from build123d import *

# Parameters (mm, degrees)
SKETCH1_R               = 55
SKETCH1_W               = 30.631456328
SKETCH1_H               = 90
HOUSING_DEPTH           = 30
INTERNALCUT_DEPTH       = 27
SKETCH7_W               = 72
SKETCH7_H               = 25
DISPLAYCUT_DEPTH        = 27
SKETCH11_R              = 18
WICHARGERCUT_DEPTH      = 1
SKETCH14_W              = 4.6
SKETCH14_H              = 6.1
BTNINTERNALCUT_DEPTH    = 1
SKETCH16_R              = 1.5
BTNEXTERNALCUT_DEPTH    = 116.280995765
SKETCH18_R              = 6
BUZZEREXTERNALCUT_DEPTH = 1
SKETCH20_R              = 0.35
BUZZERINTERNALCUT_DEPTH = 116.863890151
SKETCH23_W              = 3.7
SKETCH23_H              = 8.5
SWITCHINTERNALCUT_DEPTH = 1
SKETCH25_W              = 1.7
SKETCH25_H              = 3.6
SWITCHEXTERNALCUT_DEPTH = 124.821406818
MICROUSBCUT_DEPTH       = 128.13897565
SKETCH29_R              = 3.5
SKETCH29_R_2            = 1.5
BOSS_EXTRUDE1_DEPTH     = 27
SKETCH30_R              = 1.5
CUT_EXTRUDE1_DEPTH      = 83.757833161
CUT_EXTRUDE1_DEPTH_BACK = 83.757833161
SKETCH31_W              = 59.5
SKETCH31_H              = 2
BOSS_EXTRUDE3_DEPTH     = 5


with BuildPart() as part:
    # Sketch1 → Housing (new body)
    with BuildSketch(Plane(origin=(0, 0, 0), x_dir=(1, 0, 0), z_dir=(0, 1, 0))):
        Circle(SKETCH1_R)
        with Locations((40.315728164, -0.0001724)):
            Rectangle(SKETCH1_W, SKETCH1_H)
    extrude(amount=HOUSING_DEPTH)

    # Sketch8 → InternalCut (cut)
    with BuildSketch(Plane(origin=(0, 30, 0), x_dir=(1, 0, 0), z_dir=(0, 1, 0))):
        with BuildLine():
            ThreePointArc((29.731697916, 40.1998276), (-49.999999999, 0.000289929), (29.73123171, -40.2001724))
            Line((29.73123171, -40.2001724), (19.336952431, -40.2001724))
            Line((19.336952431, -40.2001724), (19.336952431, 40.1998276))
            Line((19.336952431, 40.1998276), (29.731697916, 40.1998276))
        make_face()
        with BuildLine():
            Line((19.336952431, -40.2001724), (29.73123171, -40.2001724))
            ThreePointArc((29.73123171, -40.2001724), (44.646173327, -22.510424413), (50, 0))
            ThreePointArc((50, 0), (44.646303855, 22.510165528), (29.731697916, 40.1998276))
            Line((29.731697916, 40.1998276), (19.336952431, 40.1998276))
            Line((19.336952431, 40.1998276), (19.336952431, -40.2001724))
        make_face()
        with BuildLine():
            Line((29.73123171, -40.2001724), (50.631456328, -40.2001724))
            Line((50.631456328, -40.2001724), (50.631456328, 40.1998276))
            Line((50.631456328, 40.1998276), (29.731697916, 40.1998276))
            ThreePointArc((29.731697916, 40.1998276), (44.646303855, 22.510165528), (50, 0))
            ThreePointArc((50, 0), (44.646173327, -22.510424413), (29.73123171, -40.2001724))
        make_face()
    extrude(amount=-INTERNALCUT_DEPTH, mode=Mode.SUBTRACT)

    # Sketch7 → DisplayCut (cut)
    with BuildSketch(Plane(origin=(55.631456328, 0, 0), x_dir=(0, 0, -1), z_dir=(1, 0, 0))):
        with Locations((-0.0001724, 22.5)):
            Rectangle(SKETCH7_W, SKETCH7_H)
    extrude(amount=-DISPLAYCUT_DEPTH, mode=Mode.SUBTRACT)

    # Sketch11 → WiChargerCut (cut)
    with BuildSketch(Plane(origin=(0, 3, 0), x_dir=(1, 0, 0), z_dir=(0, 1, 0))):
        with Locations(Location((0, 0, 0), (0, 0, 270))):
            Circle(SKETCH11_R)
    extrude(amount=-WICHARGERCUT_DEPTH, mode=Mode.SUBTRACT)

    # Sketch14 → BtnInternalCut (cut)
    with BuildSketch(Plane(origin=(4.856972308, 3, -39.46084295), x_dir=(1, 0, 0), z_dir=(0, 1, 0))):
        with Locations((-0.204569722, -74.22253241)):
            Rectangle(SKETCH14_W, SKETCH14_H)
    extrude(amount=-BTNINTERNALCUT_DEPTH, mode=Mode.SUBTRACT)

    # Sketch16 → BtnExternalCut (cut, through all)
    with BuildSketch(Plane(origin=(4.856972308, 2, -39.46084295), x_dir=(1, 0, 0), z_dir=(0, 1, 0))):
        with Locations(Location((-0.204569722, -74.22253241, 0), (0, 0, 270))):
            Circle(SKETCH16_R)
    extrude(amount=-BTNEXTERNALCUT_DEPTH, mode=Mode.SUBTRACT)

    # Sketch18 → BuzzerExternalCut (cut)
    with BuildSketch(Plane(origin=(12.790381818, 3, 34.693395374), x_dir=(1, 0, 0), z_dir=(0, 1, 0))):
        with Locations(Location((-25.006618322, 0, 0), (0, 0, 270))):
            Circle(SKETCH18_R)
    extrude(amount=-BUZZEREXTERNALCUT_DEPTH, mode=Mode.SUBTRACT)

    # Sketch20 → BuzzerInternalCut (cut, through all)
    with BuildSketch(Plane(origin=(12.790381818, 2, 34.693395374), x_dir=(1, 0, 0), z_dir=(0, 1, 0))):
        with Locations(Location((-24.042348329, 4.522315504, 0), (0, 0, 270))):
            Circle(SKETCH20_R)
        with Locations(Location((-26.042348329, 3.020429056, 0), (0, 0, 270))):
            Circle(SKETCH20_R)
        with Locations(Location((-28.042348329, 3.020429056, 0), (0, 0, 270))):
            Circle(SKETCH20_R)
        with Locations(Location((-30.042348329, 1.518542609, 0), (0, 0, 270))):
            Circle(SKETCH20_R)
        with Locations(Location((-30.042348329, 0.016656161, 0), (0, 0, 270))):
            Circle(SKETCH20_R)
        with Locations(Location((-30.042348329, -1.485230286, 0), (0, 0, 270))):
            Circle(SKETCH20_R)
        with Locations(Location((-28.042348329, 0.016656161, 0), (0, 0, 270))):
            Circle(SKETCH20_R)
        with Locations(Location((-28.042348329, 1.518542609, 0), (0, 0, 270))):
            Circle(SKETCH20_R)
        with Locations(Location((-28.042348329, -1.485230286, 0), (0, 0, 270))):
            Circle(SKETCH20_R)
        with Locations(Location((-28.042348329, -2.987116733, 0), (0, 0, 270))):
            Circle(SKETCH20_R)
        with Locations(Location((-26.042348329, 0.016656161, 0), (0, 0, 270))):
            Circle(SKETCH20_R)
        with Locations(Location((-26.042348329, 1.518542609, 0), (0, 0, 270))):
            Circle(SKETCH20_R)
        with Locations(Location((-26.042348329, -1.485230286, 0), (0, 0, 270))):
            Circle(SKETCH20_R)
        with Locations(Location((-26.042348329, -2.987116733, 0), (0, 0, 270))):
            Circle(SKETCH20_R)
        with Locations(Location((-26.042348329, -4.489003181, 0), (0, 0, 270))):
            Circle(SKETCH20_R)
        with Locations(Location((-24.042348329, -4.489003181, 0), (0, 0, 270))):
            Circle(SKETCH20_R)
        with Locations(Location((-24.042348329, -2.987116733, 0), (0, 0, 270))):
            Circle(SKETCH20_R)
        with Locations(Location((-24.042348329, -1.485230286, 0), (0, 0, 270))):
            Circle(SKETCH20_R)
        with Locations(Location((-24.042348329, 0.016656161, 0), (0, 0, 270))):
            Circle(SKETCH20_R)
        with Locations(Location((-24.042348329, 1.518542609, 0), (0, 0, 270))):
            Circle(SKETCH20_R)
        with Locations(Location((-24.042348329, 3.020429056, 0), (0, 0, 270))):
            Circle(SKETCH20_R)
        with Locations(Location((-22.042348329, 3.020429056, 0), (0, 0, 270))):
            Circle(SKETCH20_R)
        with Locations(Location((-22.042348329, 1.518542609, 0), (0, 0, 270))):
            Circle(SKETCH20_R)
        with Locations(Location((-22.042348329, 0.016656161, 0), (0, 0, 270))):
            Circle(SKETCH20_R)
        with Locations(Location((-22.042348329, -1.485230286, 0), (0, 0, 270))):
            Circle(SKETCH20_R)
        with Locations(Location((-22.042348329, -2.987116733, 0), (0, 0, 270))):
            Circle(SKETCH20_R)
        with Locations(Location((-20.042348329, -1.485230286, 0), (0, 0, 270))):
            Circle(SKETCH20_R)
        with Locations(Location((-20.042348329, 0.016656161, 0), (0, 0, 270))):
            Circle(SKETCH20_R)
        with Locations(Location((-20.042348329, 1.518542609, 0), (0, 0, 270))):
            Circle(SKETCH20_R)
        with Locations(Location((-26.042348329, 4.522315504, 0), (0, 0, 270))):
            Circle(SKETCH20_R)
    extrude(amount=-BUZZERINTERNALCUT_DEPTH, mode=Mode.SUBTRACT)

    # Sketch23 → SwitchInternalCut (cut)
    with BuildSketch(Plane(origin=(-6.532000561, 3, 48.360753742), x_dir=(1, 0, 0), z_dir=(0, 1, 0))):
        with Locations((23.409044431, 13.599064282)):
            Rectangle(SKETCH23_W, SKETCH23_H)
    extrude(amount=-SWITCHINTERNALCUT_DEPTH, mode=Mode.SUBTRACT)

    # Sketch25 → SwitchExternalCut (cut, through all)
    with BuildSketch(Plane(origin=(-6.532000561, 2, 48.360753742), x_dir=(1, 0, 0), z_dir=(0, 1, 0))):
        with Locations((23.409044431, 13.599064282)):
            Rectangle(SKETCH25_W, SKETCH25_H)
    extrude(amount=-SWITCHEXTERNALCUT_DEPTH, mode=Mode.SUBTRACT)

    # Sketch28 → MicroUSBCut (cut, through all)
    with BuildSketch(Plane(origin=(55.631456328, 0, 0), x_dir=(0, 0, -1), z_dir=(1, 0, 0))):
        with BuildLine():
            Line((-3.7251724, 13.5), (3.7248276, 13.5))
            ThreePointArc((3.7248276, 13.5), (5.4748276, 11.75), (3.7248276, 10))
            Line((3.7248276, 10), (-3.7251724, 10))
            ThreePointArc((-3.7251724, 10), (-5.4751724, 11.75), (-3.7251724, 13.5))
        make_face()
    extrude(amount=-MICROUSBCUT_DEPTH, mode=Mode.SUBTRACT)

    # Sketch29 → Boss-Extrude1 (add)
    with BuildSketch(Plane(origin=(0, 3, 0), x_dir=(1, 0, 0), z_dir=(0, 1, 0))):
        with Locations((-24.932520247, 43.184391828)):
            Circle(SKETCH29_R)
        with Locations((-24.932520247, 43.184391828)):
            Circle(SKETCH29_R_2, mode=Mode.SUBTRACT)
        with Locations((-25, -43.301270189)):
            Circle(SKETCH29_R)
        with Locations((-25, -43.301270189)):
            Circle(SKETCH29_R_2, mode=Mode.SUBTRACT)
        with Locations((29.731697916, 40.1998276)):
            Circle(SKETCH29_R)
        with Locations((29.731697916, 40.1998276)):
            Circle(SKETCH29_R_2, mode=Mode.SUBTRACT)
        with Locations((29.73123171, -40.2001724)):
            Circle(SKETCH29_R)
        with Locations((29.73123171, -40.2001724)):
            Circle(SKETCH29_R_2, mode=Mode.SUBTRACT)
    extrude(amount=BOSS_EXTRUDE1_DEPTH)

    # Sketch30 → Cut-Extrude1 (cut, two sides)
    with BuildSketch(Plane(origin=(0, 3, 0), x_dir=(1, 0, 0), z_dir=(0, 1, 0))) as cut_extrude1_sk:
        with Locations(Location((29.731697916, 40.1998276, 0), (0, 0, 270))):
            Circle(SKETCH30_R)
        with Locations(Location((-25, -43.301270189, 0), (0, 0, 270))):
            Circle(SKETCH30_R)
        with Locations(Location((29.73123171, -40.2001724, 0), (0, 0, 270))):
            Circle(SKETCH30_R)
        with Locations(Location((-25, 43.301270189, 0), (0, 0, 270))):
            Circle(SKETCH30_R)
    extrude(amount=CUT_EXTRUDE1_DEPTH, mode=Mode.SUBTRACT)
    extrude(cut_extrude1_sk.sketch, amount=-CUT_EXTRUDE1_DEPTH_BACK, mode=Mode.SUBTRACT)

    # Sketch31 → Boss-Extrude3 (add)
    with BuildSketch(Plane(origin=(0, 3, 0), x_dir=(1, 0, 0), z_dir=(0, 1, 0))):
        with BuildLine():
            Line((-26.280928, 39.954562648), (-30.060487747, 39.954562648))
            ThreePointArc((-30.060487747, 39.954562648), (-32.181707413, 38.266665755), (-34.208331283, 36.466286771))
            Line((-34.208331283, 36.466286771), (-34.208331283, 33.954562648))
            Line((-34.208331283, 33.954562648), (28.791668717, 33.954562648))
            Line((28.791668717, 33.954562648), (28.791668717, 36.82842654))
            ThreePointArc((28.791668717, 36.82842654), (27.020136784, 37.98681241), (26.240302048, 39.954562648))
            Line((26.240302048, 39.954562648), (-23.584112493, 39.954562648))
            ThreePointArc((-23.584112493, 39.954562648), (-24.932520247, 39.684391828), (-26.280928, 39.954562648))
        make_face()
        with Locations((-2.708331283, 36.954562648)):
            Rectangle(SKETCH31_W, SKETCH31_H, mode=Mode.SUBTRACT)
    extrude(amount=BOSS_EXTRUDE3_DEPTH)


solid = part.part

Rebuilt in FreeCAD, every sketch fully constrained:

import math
import FreeCAD as App
import Part
import Sketcher

V = App.Vector


def add_polygon(sketch, points):
    """Adds a closed chain of lines whose ends are joined by coincident constraints."""
    first, n = sketch.GeometryCount, len(points)
    for a, b in zip(points, points[1:] + points[:1]):
        sketch.addGeometry(Part.LineSegment(App.Vector(*a, 0), App.Vector(*b, 0)), False)
    for i in range(n):
        sketch.addConstraint(Sketcher.Constraint("Coincident", first + i, 2, first + (i + 1) % n, 1))

doc = App.newDocument("Part")
body = doc.addObject("PartDesign::Body", "Body")

sketch1 = body.newObject("Sketcher::SketchObject", "Sketch")
sketch1.AttachmentSupport = (doc.getObject("XZ_Plane"), [""])
sketch1.MapMode = "FlatFace"
sketch1.addGeometry([
    Part.LineSegment(V(32, 45, 0), V(56, 45, 0)),
    Part.LineSegment(V(56, 45, 0), V(56, -45, 0)),
    Part.LineSegment(V(56, -45, 0), V(32, -45, 0)),
    Part.ArcOfCircle(Part.Circle(V(0, 0, 0), V(0, 0, 1), 55), math.radians(55), math.radians(305)),
], False)
sketch1.addConstraint([
    Sketcher.Constraint("Coincident", 0, 2, 1, 1),
    Sketcher.Constraint("Coincident", 1, 2, 2, 1),
    Sketcher.Constraint("Coincident", 2, 2, 3, 2),
    Sketcher.Constraint("Coincident", 3, 1, 0, 1),
    Sketcher.Constraint("Horizontal", 0),
    Sketcher.Constraint("Vertical", 1),
    Sketcher.Constraint("Horizontal", 2),
    Sketcher.Constraint("Coincident", 3, 3, -1, 1),
    Sketcher.Constraint("Radius", 3, 55.0),
    Sketcher.Constraint("DistanceY", 1, 2, 1, 1, 90.0),
    Sketcher.Constraint("DistanceX", 0, 1, 0, 2, 24.008925),
    Sketcher.Constraint("DistanceX", 2, 2, 2, 1, 24.008434),
])
pad1 = body.newObject("PartDesign::Pad", "Pad")
pad1.Profile = sketch1
pad1.Length = 30
pad1.Reversed = True

sketch2 = body.newObject("Sketcher::SketchObject", "Sketch001")
sketch2.AttachmentSupport = (doc.getObject("XZ_Plane"), [""])
sketch2.MapMode = "FlatFace"
sketch2.AttachmentOffset = App.Placement(V(0, 0, -30), App.Rotation())
sketch2.addGeometry([
    Part.ArcOfCircle(Part.Circle(V(0, 0, 0), V(0, 0, 1), 50), math.radians(54), math.radians(306)),
    Part.LineSegment(V(30, 40, 0), V(51, 40, 0)),
    Part.LineSegment(V(51, 40, 0), V(51, -40, 0)),
    Part.LineSegment(V(51, -40, 0), V(30, -40, 0)),
], False)
sketch2.addConstraint([
    Sketcher.Constraint("Coincident", 0, 1, 1, 1),
    Sketcher.Constraint("Coincident", 1, 2, 2, 1),
    Sketcher.Constraint("Coincident", 2, 2, 3, 1),
    Sketcher.Constraint("Coincident", 3, 2, 0, 2),
    Sketcher.Constraint("Horizontal", 1),
    Sketcher.Constraint("Vertical", 2),
    Sketcher.Constraint("Horizontal", 3),
    Sketcher.Constraint("Coincident", 0, 3, -1, 1),
    Sketcher.Constraint("Radius", 0, 50.0),
    Sketcher.Constraint("DistanceY", 2, 2, 2, 1, 80.4),
    Sketcher.Constraint("DistanceX", 3, 2, 3, 1, 20.899758),
    Sketcher.Constraint("DistanceX", 1, 1, 1, 2, 20.900225),
])
pocket1 = body.newObject("PartDesign::Pocket", "Pocket")
pocket1.Profile = sketch2
pocket1.Length = 27
pocket1.Reversed = True

sketch3 = body.newObject("Sketcher::SketchObject", "Sketch002")
sketch3.AttachmentSupport = (doc.getObject("YZ_Plane"), [""])
sketch3.MapMode = "FlatFace"
sketch3.AttachmentOffset = App.Placement(V(0, 0, 55.631456), App.Rotation())
add_polygon(sketch3, [(35, 36), (10, 36), (10, -36), (35, -36)])
sketch3.addConstraint([
    Sketcher.Constraint("Horizontal", 0),
    Sketcher.Constraint("Vertical", 1),
    Sketcher.Constraint("Horizontal", 2),
    Sketcher.Constraint("Vertical", 3),
    Sketcher.Constraint("DistanceX", 0, 2, 0, 1, 25.0),
    Sketcher.Constraint("DistanceY", 1, 2, 1, 1, 72.0),
    Sketcher.Constraint("DistanceX", -1, 1, 0, 2, 10.0),
    Sketcher.Constraint("DistanceY", -1, 1, 0, 2, 36.000172),
])
pocket2 = body.newObject("PartDesign::Pocket", "Pocket001")
pocket2.Profile = sketch3
pocket2.Length = 27

sketch4 = body.newObject("Sketcher::SketchObject", "Sketch003")
sketch4.AttachmentSupport = (doc.getObject("XZ_Plane"), [""])
sketch4.MapMode = "FlatFace"
sketch4.AttachmentOffset = App.Placement(V(0, 0, -3), App.Rotation())
sketch4.addGeometry(Part.Circle(V(0, 0, 0), V(0, 0, 1), 18), False)
sketch4.addConstraint([
    Sketcher.Constraint("Coincident", 0, 3, -1, 1),
    Sketcher.Constraint("Diameter", 0, 36.0),
])
pocket3 = body.newObject("PartDesign::Pocket", "Pocket002")
pocket3.Profile = sketch4
pocket3.Length = 1
pocket3.Reversed = True

sketch5 = body.newObject("Sketcher::SketchObject", "Sketch004")
sketch5.AttachmentSupport = (doc.getObject("XZ_Plane"), [""])
sketch5.MapMode = "FlatFace"
sketch5.AttachmentOffset = App.Placement(V(0, 0, -3), App.Rotation())
add_polygon(sketch5, [(2.4, 31.7), (2.4, 37.8), (7, 37.8), (7, 31.7)])
sketch5.addConstraint([
    Sketcher.Constraint("Vertical", 0),
    Sketcher.Constraint("Horizontal", 1),
    Sketcher.Constraint("Vertical", 2),
    Sketcher.Constraint("Horizontal", 3),
    Sketcher.Constraint("DistanceX", 1, 1, 1, 2, 4.6),
    Sketcher.Constraint("DistanceY", 0, 1, 0, 2, 6.1),
    Sketcher.Constraint("DistanceY", -1, 1, 0, 2, 37.811689),
    Sketcher.Constraint("DistanceX", -1, 1, 0, 2, 2.352403),
])
pocket4 = body.newObject("PartDesign::Pocket", "Pocket003")
pocket4.Profile = sketch5
pocket4.Length = 1
pocket4.Reversed = True

sketch6 = body.newObject("Sketcher::SketchObject", "Sketch005")
sketch6.AttachmentSupport = (doc.getObject("XZ_Plane"), [""])
sketch6.MapMode = "FlatFace"
sketch6.AttachmentOffset = App.Placement(V(0, 0, -2), App.Rotation())
sketch6.addGeometry(Part.Circle(V(4.7, 34.8, 0), V(0, 0, 1), 1.5), False)
sketch6.addConstraint([
    Sketcher.Constraint("Diameter", 0, 3.0),
    Sketcher.Constraint("DistanceY", -1, 1, 0, 3, 34.761689),
    Sketcher.Constraint("DistanceX", -1, 1, 0, 3, 4.652403),
])
pocket5 = body.newObject("PartDesign::Pocket", "Pocket004")
pocket5.Profile = sketch6
pocket5.Type = "ThroughAll"
pocket5.Reversed = True

sketch7 = body.newObject("Sketcher::SketchObject", "Sketch006")
sketch7.AttachmentSupport = (doc.getObject("XZ_Plane"), [""])
sketch7.MapMode = "FlatFace"
sketch7.AttachmentOffset = App.Placement(V(0, 0, -3), App.Rotation())
sketch7.addGeometry(Part.Circle(V(-12, 35, 0), V(0, 0, 1), 6), False)
sketch7.addConstraint([
    Sketcher.Constraint("Diameter", 0, 12.0),
    Sketcher.Constraint("DistanceX", 0, 3, -1, 1, 12.216237),
    Sketcher.Constraint("DistanceY", -1, 1, 0, 3, 34.693395),
])
pocket6 = body.newObject("PartDesign::Pocket", "Pocket005")
pocket6.Profile = sketch7
pocket6.Length = 1
pocket6.Reversed = True

sketch8 = body.newObject("Sketcher::SketchObject", "Sketch007")
sketch8.AttachmentSupport = (doc.getObject("XZ_Plane"), [""])
sketch8.MapMode = "FlatFace"
sketch8.AttachmentOffset = App.Placement(V(0, 0, -2), App.Rotation())
sketch8.addGeometry([
    Part.Circle(V(-11.25, 30.17, 0), V(0, 0, 1), 0.35),
    Part.Circle(V(-13.25, 31.67, 0), V(0, 0, 1), 0.35),
    Part.Circle(V(-15.25, 31.67, 0), V(0, 0, 1), 0.35),
    Part.Circle(V(-17.25, 33.17, 0), V(0, 0, 1), 0.35),
    Part.Circle(V(-17.25, 34.68, 0), V(0, 0, 1), 0.35),
    Part.Circle(V(-17.25, 36.18, 0), V(0, 0, 1), 0.35),
    Part.Circle(V(-15.25, 34.68, 0), V(0, 0, 1), 0.35),
    Part.Circle(V(-15.25, 33.17, 0), V(0, 0, 1), 0.35),
    Part.Circle(V(-15.25, 36.18, 0), V(0, 0, 1), 0.35),
    Part.Circle(V(-15.25, 37.68, 0), V(0, 0, 1), 0.35),
    Part.Circle(V(-13.25, 34.68, 0), V(0, 0, 1), 0.35),
    Part.Circle(V(-13.25, 33.17, 0), V(0, 0, 1), 0.35),
    Part.Circle(V(-13.25, 36.18, 0), V(0, 0, 1), 0.35),
    Part.Circle(V(-13.25, 37.68, 0), V(0, 0, 1), 0.35),
    Part.Circle(V(-13.25, 39.18, 0), V(0, 0, 1), 0.35),
    Part.Circle(V(-11.25, 39.18, 0), V(0, 0, 1), 0.35),
    Part.Circle(V(-11.25, 37.68, 0), V(0, 0, 1), 0.35),
    Part.Circle(V(-11.25, 36.18, 0), V(0, 0, 1), 0.35),
    Part.Circle(V(-11.25, 34.68, 0), V(0, 0, 1), 0.35),
    Part.Circle(V(-11.25, 33.17, 0), V(0, 0, 1), 0.35),
    Part.Circle(V(-11.25, 31.67, 0), V(0, 0, 1), 0.35),
    Part.Circle(V(-9.25, 31.67, 0), V(0, 0, 1), 0.35),
    Part.Circle(V(-9.25, 33.17, 0), V(0, 0, 1), 0.35),
    Part.Circle(V(-9.25, 34.68, 0), V(0, 0, 1), 0.35),
    Part.Circle(V(-9.25, 36.18, 0), V(0, 0, 1), 0.35),
    Part.Circle(V(-9.25, 37.68, 0), V(0, 0, 1), 0.35),
    Part.Circle(V(-7.25, 36.18, 0), V(0, 0, 1), 0.35),
    Part.Circle(V(-7.25, 34.68, 0), V(0, 0, 1), 0.35),
    Part.Circle(V(-7.25, 33.17, 0), V(0, 0, 1), 0.35),
    Part.Circle(V(-13.25, 30.17, 0), V(0, 0, 1), 0.35),
], False)
sketch8.addConstraint([
    Sketcher.Constraint("Equal", 0, 1),
    Sketcher.Constraint("Equal", 1, 2),
    Sketcher.Constraint("Equal", 2, 3),
    Sketcher.Constraint("Equal", 3, 4),
    Sketcher.Constraint("Equal", 4, 5),
    Sketcher.Constraint("Equal", 5, 6),
    Sketcher.Constraint("Equal", 6, 7),
    Sketcher.Constraint("Equal", 7, 8),
    Sketcher.Constraint("Equal", 8, 9),
    Sketcher.Constraint("Equal", 9, 10),
    Sketcher.Constraint("Equal", 10, 11),
    Sketcher.Constraint("Equal", 11, 12),
    Sketcher.Constraint("Equal", 12, 13),
    Sketcher.Constraint("Equal", 13, 14),
    Sketcher.Constraint("Equal", 14, 15),
    Sketcher.Constraint("Equal", 15, 16),
    Sketcher.Constraint("Equal", 16, 17),
    Sketcher.Constraint("Equal", 17, 18),
    Sketcher.Constraint("Equal", 18, 19),
    Sketcher.Constraint("Equal", 19, 20),
    Sketcher.Constraint("Equal", 20, 21),
    Sketcher.Constraint("Equal", 21, 22),
    Sketcher.Constraint("Equal", 22, 23),
    Sketcher.Constraint("Equal", 23, 24),
    Sketcher.Constraint("Equal", 24, 25),
    Sketcher.Constraint("Equal", 25, 26),
    Sketcher.Constraint("Equal", 26, 27),
    Sketcher.Constraint("Equal", 27, 28),
    Sketcher.Constraint("Equal", 28, 29),
    Sketcher.Constraint("Horizontal", 1, 3, 2, 3),
    Sketcher.Constraint("Horizontal", 4, 3, 6, 3),
    Sketcher.Constraint("Horizontal", 3, 3, 7, 3),
    Sketcher.Constraint("Horizontal", 5, 3, 8, 3),
    Sketcher.Constraint("Horizontal", 6, 3, 10, 3),
    Sketcher.Constraint("Horizontal", 7, 3, 11, 3),
    Sketcher.Constraint("Horizontal", 8, 3, 12, 3),
    Sketcher.Constraint("Horizontal", 9, 3, 13, 3),
    Sketcher.Constraint("Horizontal", 14, 3, 15, 3),
    Sketcher.Constraint("Horizontal", 13, 3, 16, 3),
    Sketcher.Constraint("Horizontal", 12, 3, 17, 3),
    Sketcher.Constraint("Horizontal", 10, 3, 18, 3),
    Sketcher.Constraint("Horizontal", 11, 3, 19, 3),
    Sketcher.Constraint("Horizontal", 2, 3, 20, 3),
    Sketcher.Constraint("Horizontal", 20, 3, 21, 3),
    Sketcher.Constraint("Horizontal", 19, 3, 22, 3),
    Sketcher.Constraint("Horizontal", 18, 3, 23, 3),
    Sketcher.Constraint("Horizontal", 17, 3, 24, 3),
    Sketcher.Constraint("Horizontal", 16, 3, 25, 3),
    Sketcher.Constraint("Horizontal", 24, 3, 26, 3),
    Sketcher.Constraint("Horizontal", 23, 3, 27, 3),
    Sketcher.Constraint("Horizontal", 22, 3, 28, 3),
    Sketcher.Constraint("Horizontal", 0, 3, 29, 3),
    Sketcher.Constraint("Vertical", 3, 3, 4, 3),
    Sketcher.Constraint("Vertical", 4, 3, 5, 3),
    Sketcher.Constraint("Vertical", 2, 3, 6, 3),
    Sketcher.Constraint("Vertical", 6, 3, 7, 3),
    Sketcher.Constraint("Vertical", 7, 3, 8, 3),
    Sketcher.Constraint("Vertical", 8, 3, 9, 3),
    Sketcher.Constraint("Vertical", 1, 3, 10, 3),
    Sketcher.Constraint("Vertical", 10, 3, 11, 3),
    Sketcher.Constraint("Vertical", 11, 3, 12, 3),
    Sketcher.Constraint("Vertical", 12, 3, 13, 3),
    Sketcher.Constraint("Vertical", 13, 3, 14, 3),
    Sketcher.Constraint("Vertical", 0, 3, 15, 3),
    Sketcher.Constraint("Vertical", 15, 3, 16, 3),
    Sketcher.Constraint("Vertical", 16, 3, 17, 3),
    Sketcher.Constraint("Vertical", 17, 3, 18, 3),
    Sketcher.Constraint("Vertical", 18, 3, 19, 3),
    Sketcher.Constraint("Vertical", 19, 3, 20, 3),
    Sketcher.Constraint("Vertical", 21, 3, 22, 3),
    Sketcher.Constraint("Vertical", 22, 3, 23, 3),
    Sketcher.Constraint("Vertical", 23, 3, 24, 3),
    Sketcher.Constraint("Vertical", 24, 3, 25, 3),
    Sketcher.Constraint("Vertical", 26, 3, 27, 3),
    Sketcher.Constraint("Vertical", 27, 3, 28, 3),
    Sketcher.Constraint("Vertical", 14, 3, 29, 3),
    Sketcher.Constraint("Diameter", 0, 0.7),
    Sketcher.Constraint("DistanceX", 1, 3, 0, 3, 2.0),
    Sketcher.Constraint("DistanceX", 2, 3, 1, 3, 2.0),
    Sketcher.Constraint("DistanceX", 3, 3, 2, 3, 2.0),
    Sketcher.Constraint("DistanceX", 20, 3, 21, 3, 2.0),
    Sketcher.Constraint("DistanceX", 24, 3, 26, 3, 2.0),
    Sketcher.Constraint("DistanceY", -1, 1, 14, 3, 39.182399),
    Sketcher.Constraint("DistanceY", -1, 1, 0, 3, 30.17108),
    Sketcher.Constraint("DistanceY", -1, 1, 4, 3, 34.676739),
    Sketcher.Constraint("DistanceY", 2, 3, 5, 3, 4.505659),
    Sketcher.Constraint("DistanceY", 7, 3, 9, 3, 4.505659),
    Sketcher.Constraint("DistanceX", 0, 3, -1, 1, 11.251967),
    Sketcher.Constraint("DistanceY", -1, 1, 1, 3, 31.672966),
    Sketcher.Constraint("DistanceY", -1, 1, 3, 3, 33.174853),
])
pocket7 = body.newObject("PartDesign::Pocket", "Pocket006")
pocket7.Profile = sketch8
pocket7.Type = "ThroughAll"
pocket7.Reversed = True

sketch9 = body.newObject("Sketcher::SketchObject", "Sketch008")
sketch9.AttachmentSupport = (doc.getObject("XZ_Plane"), [""])
sketch9.MapMode = "FlatFace"
sketch9.AttachmentOffset = App.Placement(V(0, 0, -3), App.Rotation())
add_polygon(sketch9, [(15, 30.5), (15, 39), (18.7, 39), (18.7, 30.5)])
sketch9.addConstraint([
    Sketcher.Constraint("Vertical", 0),
    Sketcher.Constraint("Horizontal", 1),
    Sketcher.Constraint("Vertical", 2),
    Sketcher.Constraint("Horizontal", 3),
    Sketcher.Constraint("DistanceX", 1, 1, 1, 2, 3.7),
    Sketcher.Constraint("DistanceY", 0, 1, 0, 2, 8.5),
    Sketcher.Constraint("DistanceY", -1, 1, 0, 2, 39.011689),
    Sketcher.Constraint("DistanceX", -1, 1, 0, 2, 15.027044),
])
pocket8 = body.newObject("PartDesign::Pocket", "Pocket007")
pocket8.Profile = sketch9
pocket8.Length = 1
pocket8.Reversed = True

sketch10 = body.newObject("Sketcher::SketchObject", "Sketch009")
sketch10.AttachmentSupport = (doc.getObject("XZ_Plane"), [""])
sketch10.MapMode = "FlatFace"
sketch10.AttachmentOffset = App.Placement(V(0, 0, -2), App.Rotation())
add_polygon(sketch10, [(16, 33), (16, 36.6), (17.7, 36.6), (17.7, 33)])
sketch10.addConstraint([
    Sketcher.Constraint("Vertical", 0),
    Sketcher.Constraint("Horizontal", 1),
    Sketcher.Constraint("Vertical", 2),
    Sketcher.Constraint("Horizontal", 3),
    Sketcher.Constraint("DistanceX", 1, 1, 1, 2, 1.7),
    Sketcher.Constraint("DistanceY", 0, 1, 0, 2, 3.6),
    Sketcher.Constraint("DistanceY", -1, 1, 0, 2, 36.561689),
    Sketcher.Constraint("DistanceX", -1, 1, 0, 2, 16.027044),
])
pocket9 = body.newObject("PartDesign::Pocket", "Pocket008")
pocket9.Profile = sketch10
pocket9.Type = "ThroughAll"
pocket9.Reversed = True

sketch11 = body.newObject("Sketcher::SketchObject", "Sketch010")
sketch11.AttachmentSupport = (doc.getObject("YZ_Plane"), [""])
sketch11.MapMode = "FlatFace"
sketch11.AttachmentOffset = App.Placement(V(0, 0, 55.631456), App.Rotation())
sketch11.addGeometry([
    Part.LineSegment(V(13.5, -3.7, 0), V(13.5, 3.7, 0)),
    Part.ArcOfCircle(Part.Circle(V(11.8, 3.7, 0), V(0, 0, 1), 1.8), math.radians(0), math.radians(180)),
    Part.LineSegment(V(10, 3.7, 0), V(10, -3.7, 0)),
    Part.ArcOfCircle(Part.Circle(V(11.8, -3.7, 0), V(0, 0, 1), 1.8), math.radians(180), math.radians(360)),
], False)
sketch11.addConstraint([
    Sketcher.Constraint("Tangent", 0, 2, 1, 1),
    Sketcher.Constraint("Tangent", 1, 2, 2, 1),
    Sketcher.Constraint("Tangent", 2, 2, 3, 1),
    Sketcher.Constraint("Tangent", 3, 2, 0, 1),
    Sketcher.Constraint("Vertical", 0),
    Sketcher.Constraint("Vertical", 2),
    Sketcher.Constraint("Radius", 1, 1.75),
    Sketcher.Constraint("DistanceX", -1, 1, 1, 2, 10.0),
    Sketcher.Constraint("DistanceY", 0, 1, 0, 2, 7.45),
    Sketcher.Constraint("DistanceY", -1, 1, 1, 3, 3.725172),
])
pocket10 = body.newObject("PartDesign::Pocket", "Pocket009")
pocket10.Profile = sketch11
pocket10.Type = "ThroughAll"

sketch12 = body.newObject("Sketcher::SketchObject", "Sketch011")
sketch12.AttachmentSupport = (doc.getObject("XZ_Plane"), [""])
sketch12.MapMode = "FlatFace"
sketch12.AttachmentOffset = App.Placement(V(0, 0, -3), App.Rotation())
sketch12.addGeometry([
    Part.Circle(V(-24.9, -43.2, 0), V(0, 0, 1), 3.5),
    Part.Circle(V(-24.9, -43.2, 0), V(0, 0, 1), 1.5),
    Part.Circle(V(-25, 43.3, 0), V(0, 0, 1), 3.5),
    Part.Circle(V(-25, 43.3, 0), V(0, 0, 1), 1.5),
    Part.Circle(V(29.7, -40.2, 0), V(0, 0, 1), 3.5),
    Part.Circle(V(29.7, -40.2, 0), V(0, 0, 1), 1.5),
    Part.Circle(V(29.7, 40.2, 0), V(0, 0, 1), 3.5),
    Part.Circle(V(29.7, 40.2, 0), V(0, 0, 1), 1.5),
], False)
sketch12.addConstraint([
    Sketcher.Constraint("Coincident", 1, 3, 0, 3),
    Sketcher.Constraint("Coincident", 3, 3, 2, 3),
    Sketcher.Constraint("Coincident", 5, 3, 4, 3),
    Sketcher.Constraint("Coincident", 7, 3, 6, 3),
    Sketcher.Constraint("Equal", 0, 2),
    Sketcher.Constraint("Equal", 1, 3),
    Sketcher.Constraint("Equal", 2, 4),
    Sketcher.Constraint("Equal", 3, 5),
    Sketcher.Constraint("Equal", 4, 6),
    Sketcher.Constraint("Equal", 5, 7),
    Sketcher.Constraint("Diameter", 0, 7.0),
    Sketcher.Constraint("Diameter", 1, 3.0),
    Sketcher.Constraint("DistanceX", 2, 3, -1, 1, 25.0),
    Sketcher.Constraint("DistanceY", 4, 3, 6, 3, 80.4),
    Sketcher.Constraint("DistanceX", 0, 3, -1, 1, 24.93252),
    Sketcher.Constraint("DistanceY", 0, 3, -1, 1, 43.184392),
    Sketcher.Constraint("DistanceY", -1, 1, 2, 3, 43.30127),
    Sketcher.Constraint("DistanceX", -1, 1, 6, 3, 29.731232),
    Sketcher.Constraint("DistanceX", 0, 3, 4, 3, 54.664218),
    Sketcher.Constraint("DistanceY", 4, 3, -1, 1, 40.199828),
])
pad2 = body.newObject("PartDesign::Pad", "Pad001")
pad2.Profile = sketch12
pad2.Length = 27
pad2.Reversed = True

sketch13 = body.newObject("Sketcher::SketchObject", "Sketch012")
sketch13.AttachmentSupport = (doc.getObject("XZ_Plane"), [""])
sketch13.MapMode = "FlatFace"
sketch13.AttachmentOffset = App.Placement(V(0, 0, -3), App.Rotation())
sketch13.addGeometry([
    Part.Circle(V(29.7, -40.2, 0), V(0, 0, 1), 1.5),
    Part.Circle(V(-25, 43.3, 0), V(0, 0, 1), 1.5),
    Part.Circle(V(29.7, 40.2, 0), V(0, 0, 1), 1.5),
    Part.Circle(V(-25, -43.3, 0), V(0, 0, 1), 1.5),
], False)
sketch13.addConstraint([
    Sketcher.Constraint("Equal", 0, 1),
    Sketcher.Constraint("Equal", 1, 2),
    Sketcher.Constraint("Equal", 2, 3),
    Sketcher.Constraint("Symmetric", 1, 3, 3, 3, -1),
    Sketcher.Constraint("Diameter", 0, 3.0),
    Sketcher.Constraint("DistanceX", 1, 3, -1, 1, 25.0),
    Sketcher.Constraint("DistanceY", 0, 3, 2, 3, 80.4),
    Sketcher.Constraint("DistanceY", -1, 1, 1, 3, 43.30127),
    Sketcher.Constraint("DistanceX", -1, 1, 2, 3, 29.731232),
    Sketcher.Constraint("DistanceX", -1, 1, 0, 3, 29.731698),
    Sketcher.Constraint("DistanceY", 0, 3, -1, 1, 40.199828),
])
pocket11 = body.newObject("PartDesign::Pocket", "Pocket010")
pocket11.Profile = sketch13
pocket11.Type = "ThroughAll"
pocket11.Midplane = True

sketch14 = body.newObject("Sketcher::SketchObject", "Sketch013")
sketch14.AttachmentSupport = (doc.getObject("XZ_Plane"), [""])
sketch14.MapMode = "FlatFace"
sketch14.AttachmentOffset = App.Placement(V(0, 0, -3), App.Rotation())
sketch14.addGeometry(Part.LineSegment(V(-26.3, -40, 0), V(-30.1, -40, 0)), False)
sketch14.addGeometry(Part.ArcOfCircle(Part.Circle(V(0, 0, 0), V(0, 0, 1), 50), math.radians(-133.17), math.radians(-126.96)), False)
sketch14.addGeometry(Part.LineSegment(V(-34.2, -36.5, 0), V(-34.2, -34, 0)), False)
sketch14.addGeometry(Part.LineSegment(V(-34.2, -34, 0), V(28.8, -34, 0)), False)
sketch14.addGeometry(Part.LineSegment(V(28.8, -34, 0), V(28.8, -36.8, 0)), False)
sketch14.addGeometry(Part.ArcOfCircle(Part.Circle(V(29.7, -40.2, 0), V(0, 0, 1), 3.5), math.radians(106), math.radians(176)), False)
sketch14.addGeometry(Part.LineSegment(V(26.2, -40, 0), V(-23.6, -40, 0)), False)
sketch14.addGeometry(Part.ArcOfCircle(Part.Circle(V(-24.9, -43.2, 0), V(0, 0, 1), 3.5), math.radians(67), math.radians(113)), False)
add_polygon(sketch14, [(27, -36), (-32.5, -36), (-32.5, -38), (27, -38)])
sketch14.addConstraint([
    Sketcher.Constraint("Coincident", 0, 2, 1, 2),
    Sketcher.Constraint("Coincident", 1, 1, 2, 1),
    Sketcher.Constraint("Coincident", 2, 2, 3, 1),
    Sketcher.Constraint("Coincident", 3, 2, 4, 1),
    Sketcher.Constraint("Coincident", 4, 2, 5, 1),
    Sketcher.Constraint("Coincident", 5, 2, 6, 1),
    Sketcher.Constraint("Coincident", 6, 2, 7, 1),
    Sketcher.Constraint("Coincident", 7, 2, 0, 1),
    Sketcher.Constraint("Horizontal", 0),
    Sketcher.Constraint("Vertical", 2),
    Sketcher.Constraint("Horizontal", 3),
    Sketcher.Constraint("Vertical", 4),
    Sketcher.Constraint("Horizontal", 6),
    Sketcher.Constraint("Horizontal", 8),
    Sketcher.Constraint("Vertical", 9),
    Sketcher.Constraint("Horizontal", 10),
    Sketcher.Constraint("Vertical", 11),
    Sketcher.Constraint("Coincident", 1, 3, -1, 1),
    Sketcher.Constraint("Equal", 5, 7),
    Sketcher.Constraint("Horizontal", 0, 2, 5, 2),
    Sketcher.Constraint("Radius", 1, 50.0),
    Sketcher.Constraint("Radius", 5, 3.5),
    Sketcher.Constraint("DistanceX", 3, 1, 3, 2, 63.0),
    Sketcher.Constraint("DistanceY", 9, 2, 9, 1, 2.0),
    Sketcher.Constraint("DistanceX", 8, 2, 8, 1, 59.5),
    Sketcher.Constraint("DistanceY", 0, 2, 2, 2, 6.0),
    Sketcher.Constraint("DistanceY", 8, 2, 2, 2, 2.0),
    Sketcher.Constraint("DistanceX", 1, 1, 8, 2, 1.75),
    Sketcher.Constraint("DistanceX", 0, 2, 0, 1, 3.77956),
    Sketcher.Constraint("DistanceY", 5, 3, 4, 2, 3.371401),
    Sketcher.Constraint("DistanceX", 6, 2, 6, 1, 49.824415),
    Sketcher.Constraint("DistanceY", 2, 1, 2, 2, 2.511724),
    Sketcher.Constraint("DistanceY", 4, 2, 4, 1, 2.873864),
    Sketcher.Constraint("DistanceX", 7, 3, -1, 1, 24.93252),
])
pad3 = body.newObject("PartDesign::Pad", "Pad002")
pad3.Profile = sketch14
pad3.Length = 5
pad3.Reversed = True

doc.recompute()
